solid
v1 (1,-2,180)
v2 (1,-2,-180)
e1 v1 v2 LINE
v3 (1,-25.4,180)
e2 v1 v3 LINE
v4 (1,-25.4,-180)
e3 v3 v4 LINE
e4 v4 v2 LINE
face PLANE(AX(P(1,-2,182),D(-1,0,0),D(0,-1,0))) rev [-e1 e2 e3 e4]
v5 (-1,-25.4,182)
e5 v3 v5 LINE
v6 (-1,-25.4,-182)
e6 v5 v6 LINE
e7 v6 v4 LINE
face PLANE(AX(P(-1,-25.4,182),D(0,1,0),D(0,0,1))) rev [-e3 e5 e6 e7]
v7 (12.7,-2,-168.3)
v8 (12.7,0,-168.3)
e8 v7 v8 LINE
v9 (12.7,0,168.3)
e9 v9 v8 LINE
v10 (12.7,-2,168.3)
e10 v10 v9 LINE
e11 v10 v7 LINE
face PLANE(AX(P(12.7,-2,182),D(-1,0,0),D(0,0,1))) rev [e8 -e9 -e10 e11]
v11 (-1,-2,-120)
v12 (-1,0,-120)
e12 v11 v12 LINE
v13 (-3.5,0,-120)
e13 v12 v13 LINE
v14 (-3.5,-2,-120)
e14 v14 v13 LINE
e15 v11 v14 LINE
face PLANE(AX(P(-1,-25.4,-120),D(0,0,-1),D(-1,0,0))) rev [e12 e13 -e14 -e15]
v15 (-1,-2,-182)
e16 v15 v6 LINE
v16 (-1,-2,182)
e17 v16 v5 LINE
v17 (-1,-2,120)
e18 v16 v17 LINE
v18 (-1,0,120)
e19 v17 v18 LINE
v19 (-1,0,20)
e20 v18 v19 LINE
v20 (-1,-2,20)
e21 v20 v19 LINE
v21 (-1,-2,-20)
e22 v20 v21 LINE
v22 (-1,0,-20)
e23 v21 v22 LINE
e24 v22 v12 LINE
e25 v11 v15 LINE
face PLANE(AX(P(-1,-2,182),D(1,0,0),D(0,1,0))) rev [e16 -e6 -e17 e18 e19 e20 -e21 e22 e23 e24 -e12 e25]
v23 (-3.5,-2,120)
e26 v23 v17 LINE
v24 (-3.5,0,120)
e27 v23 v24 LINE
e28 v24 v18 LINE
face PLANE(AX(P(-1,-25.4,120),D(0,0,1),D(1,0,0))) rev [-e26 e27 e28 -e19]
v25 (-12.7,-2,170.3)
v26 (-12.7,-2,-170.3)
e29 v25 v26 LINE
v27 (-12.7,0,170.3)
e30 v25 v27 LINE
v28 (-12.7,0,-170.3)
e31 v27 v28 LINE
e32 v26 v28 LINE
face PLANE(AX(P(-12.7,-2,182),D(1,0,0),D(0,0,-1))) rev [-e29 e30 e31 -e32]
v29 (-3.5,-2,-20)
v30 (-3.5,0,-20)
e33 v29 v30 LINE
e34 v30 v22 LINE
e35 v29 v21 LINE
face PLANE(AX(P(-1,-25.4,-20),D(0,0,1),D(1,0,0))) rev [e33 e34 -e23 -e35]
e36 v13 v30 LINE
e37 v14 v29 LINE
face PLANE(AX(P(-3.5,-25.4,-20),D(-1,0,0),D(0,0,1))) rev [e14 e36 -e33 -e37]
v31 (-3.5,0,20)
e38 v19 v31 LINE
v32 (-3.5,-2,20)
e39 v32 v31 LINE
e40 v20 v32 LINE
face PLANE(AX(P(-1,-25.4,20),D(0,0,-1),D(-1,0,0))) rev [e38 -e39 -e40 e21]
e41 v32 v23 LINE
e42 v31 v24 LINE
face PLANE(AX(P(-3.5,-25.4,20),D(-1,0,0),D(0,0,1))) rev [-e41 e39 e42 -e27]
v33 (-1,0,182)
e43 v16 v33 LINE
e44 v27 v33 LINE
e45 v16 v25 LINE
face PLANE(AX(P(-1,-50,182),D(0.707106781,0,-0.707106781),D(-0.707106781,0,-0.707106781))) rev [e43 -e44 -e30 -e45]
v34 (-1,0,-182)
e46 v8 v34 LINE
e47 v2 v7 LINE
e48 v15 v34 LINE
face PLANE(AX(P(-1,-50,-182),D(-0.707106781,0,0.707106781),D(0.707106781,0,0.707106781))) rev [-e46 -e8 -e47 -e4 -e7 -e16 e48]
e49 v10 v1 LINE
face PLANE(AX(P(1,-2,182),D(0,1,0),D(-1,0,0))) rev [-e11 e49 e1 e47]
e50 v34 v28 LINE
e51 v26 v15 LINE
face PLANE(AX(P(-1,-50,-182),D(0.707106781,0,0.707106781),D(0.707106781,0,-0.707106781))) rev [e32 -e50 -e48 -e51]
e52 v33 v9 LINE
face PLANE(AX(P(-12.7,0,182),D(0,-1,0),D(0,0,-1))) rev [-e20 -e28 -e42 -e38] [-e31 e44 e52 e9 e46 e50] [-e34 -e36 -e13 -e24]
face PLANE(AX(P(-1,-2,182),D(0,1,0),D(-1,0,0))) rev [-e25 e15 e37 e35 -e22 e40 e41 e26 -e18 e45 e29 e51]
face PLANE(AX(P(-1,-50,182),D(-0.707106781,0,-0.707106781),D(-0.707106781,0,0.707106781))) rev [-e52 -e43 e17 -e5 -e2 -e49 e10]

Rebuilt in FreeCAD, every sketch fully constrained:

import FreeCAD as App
import Part
import Sketcher
Q = App.Units.Quantity

doc = App.newDocument("Part")
body = doc.addObject("PartDesign::Body", "Body")

sketch1 = doc.addObject("Sketcher::SketchObject", "Sketch")
body.addObject(sketch1)
sketch1.AttachmentSupport = (doc.XY_Plane, [""])
sketch1.MapMode = "FlatFace"
sketch1.addGeometry([
    Part.LineSegment(App.Vector(12.7, 0, 0), App.Vector(-12.7, 0, 0)),
    Part.LineSegment(App.Vector(-12.7, 0, 0), App.Vector(-12.7, -2, 0)),
    Part.LineSegment(App.Vector(-12.7, -2, 0), App.Vector(-1, -2, 0)),
    Part.LineSegment(App.Vector(-1, -2, 0), App.Vector(-1, -25.4, 0)),
    Part.LineSegment(App.Vector(-1, -25.4, 0), App.Vector(1, -25.4, 0)),
    Part.LineSegment(App.Vector(1, -25.4, 0), App.Vector(1, -2, 0)),
    Part.LineSegment(App.Vector(1, -2, 0), App.Vector(12.7, -2, 0)),
    Part.LineSegment(App.Vector(12.7, -2, 0), App.Vector(12.7, 0, 0)),
], False)
sketch1.addConstraint([
    Sketcher.Constraint("Coincident", 0, 2, 1, 1),
    Sketcher.Constraint("Coincident", 1, 2, 2, 1),
    Sketcher.Constraint("Coincident", 2, 2, 3, 1),
    Sketcher.Constraint("Coincident", 3, 2, 4, 1),
    Sketcher.Constraint("Coincident", 4, 2, 5, 1),
    Sketcher.Constraint("Coincident", 5, 2, 6, 1),
    Sketcher.Constraint("Coincident", 6, 2, 7, 1),
    Sketcher.Constraint("Coincident", 7, 2, 0, 1),
    Sketcher.Constraint("Horizontal", 0),
    Sketcher.Constraint("Vertical", 1),
    Sketcher.Constraint("Horizontal", 2),
    Sketcher.Constraint("Vertical", 3),
    Sketcher.Constraint("Horizontal", 4),
    Sketcher.Constraint("Vertical", 5),
    Sketcher.Constraint("Horizontal", 6),
    Sketcher.Constraint("Vertical", 7),
    Sketcher.Constraint("Symmetric", 0, 2, 7, 2, -1, 1),
    Sketcher.Constraint("Symmetric", 2, 2, 5, 2, -2),
    Sketcher.Constraint("Equal", 4, 1),
    Sketcher.Constraint("DistanceX", 4, 1, 4, 2, Q("2 mm")),
    Sketcher.Constraint("DistanceX", 0, 2, 0, 1, Q("25.4 mm")),
    Sketcher.Constraint("DistanceY", 3, 2, 3, 1, Q("23.4 mm")),
])
pad1 = doc.addObject("PartDesign::Pad", "Pad")
body.addObject(pad1)
pad1.Profile = sketch1
pad1.Length = 364
pad1.Midplane = True

sketch2 = doc.addObject("Sketcher::SketchObject", "Sketch001")
body.addObject(sketch2)
sketch2.AttachmentSupport = (doc.XZ_Plane, [""])
sketch2.MapMode = "FlatFace"
sketch2.addGeometry([
    Part.LineSegment(App.Vector(-1, -182, 0), App.Vector(12.7, -168.3, 0)),
    Part.LineSegment(App.Vector(12.7, -168.3, 0), App.Vector(12.7, -182, 0)),
    Part.LineSegment(App.Vector(12.7, -182, 0), App.Vector(-1, -182, 0)),
    Part.LineSegment(App.Vector(12.7, 168.3, 0), App.Vector(-1, 182, 0)),
    Part.LineSegment(App.Vector(-1, 182, 0), App.Vector(12.7, 182, 0)),
    Part.LineSegment(App.Vector(12.7, 182, 0), App.Vector(12.7, 168.3, 0)),
], False)
sketch2.addConstraint([
    Sketcher.Constraint("Coincident", 0, 2, 1, 1),
    Sketcher.Constraint("Coincident", 1, 2, 2, 1),
    Sketcher.Constraint("Coincident", 2, 2, 0, 1),
    Sketcher.Constraint("Coincident", 3, 2, 4, 1),
    Sketcher.Constraint("Coincident", 4, 2, 5, 1),
    Sketcher.Constraint("Coincident", 5, 2, 3, 1),
    Sketcher.Constraint("Vertical", 1),
    Sketcher.Constraint("Horizontal", 2),
    Sketcher.Constraint("Horizontal", 4),
    Sketcher.Constraint("Vertical", 5),
    Sketcher.Constraint("Symmetric", 2, 2, 3, 2, -1),
    Sketcher.Constraint("Symmetric", 0, 2, 5, 2, -1),
    Sketcher.Constraint("Perpendicular", 0, 3),
    Sketcher.Constraint("DistanceX", 2, 2, 2, 1, Q("13.7 mm")),
    Sketcher.Constraint("DistanceY", 1, 2, -1, 1, Q("182 mm")),
    Sketcher.Constraint("DistanceX", 2, 2, -1, 1, Q("1 mm")),
])
pocket1 = doc.addObject("PartDesign::Pocket", "Pocket")
body.addObject(pocket1)
pocket1.Profile = sketch2
pocket1.Length = 100
pocket1.Midplane = True

sketch3 = doc.addObject("Sketcher::SketchObject", "Sketch002")
body.addObject(sketch3)
sketch3.AttachmentSupport = (doc.XZ_Plane, [""])
sketch3.MapMode = "FlatFace"
sketch3.addGeometry([
    Part.LineSegment(App.Vector(-3.5, -120, 0), App.Vector(-3.5, -20, 0)),
    Part.LineSegment(App.Vector(-3.5, -20, 0), App.Vector(-1, -20, 0)),
    Part.LineSegment(App.Vector(-1, -20, 0), App.Vector(-1, -120, 0)),
    Part.LineSegment(App.Vector(-1, -120, 0), App.Vector(-3.5, -120, 0)),
    Part.LineSegment(App.Vector(-3.5, 20, 0), App.Vector(-3.5, 120, 0)),
    Part.LineSegment(App.Vector(-3.5, 120, 0), App.Vector(-1, 120, 0)),
    Part.LineSegment(App.Vector(-1, 120, 0), App.Vector(-1, 20, 0)),
    Part.LineSegment(App.Vector(-1, 20, 0), App.Vector(-3.5, 20, 0)),
], False)
sketch3.addConstraint([
    Sketcher.Constraint("Coincident", 0, 2, 1, 1),
    Sketcher.Constraint("Coincident", 1, 2, 2, 1),
    Sketcher.Constraint("Coincident", 2, 2, 3, 1),
    Sketcher.Constraint("Coincident", 3, 2, 0, 1),
    Sketcher.Constraint("Coincident", 4, 2, 5, 1),
    Sketcher.Constraint("Coincident", 5, 2, 6, 1),
    Sketcher.Constraint("Coincident", 6, 2, 7, 1),
    Sketcher.Constraint("Coincident", 7, 2, 4, 1),
    Sketcher.Constraint("Vertical", 0),
    Sketcher.Constraint("Horizontal", 1),
    Sketcher.Constraint("Vertical", 2),
    Sketcher.Constraint("Horizontal", 3),
    Sketcher.Constraint("Vertical", 4),
    Sketcher.Constraint("Horizontal", 5),
    Sketcher.Constraint("Vertical", 6),
    Sketcher.Constraint("Horizontal", 7),
    Sketcher.Constraint("Symmetric", 3, 2, 4, 2, -1),
    Sketcher.Constraint("Symmetric", 1, 2, 6, 2, -1),
    Sketcher.Constraint("DistanceY", 0, 1, 0, 2, Q("100 mm")),
    Sketcher.Constraint("DistanceX", 1, 1, 1, 2, Q("2.5 mm")),
    Sketcher.Constraint("DistanceY", 0, 2, -1, 1, Q("20 mm")),
    Sketcher.Constraint("DistanceX", 1, 2, -1, 1, Q("1 mm")),
])
pocket2 = doc.addObject("PartDesign::Pocket", "Pocket001")
body.addObject(pocket2)
pocket2.Profile = sketch3
pocket2.Type = "ThroughAll"
pocket2.Reversed = True

sketch4 = doc.addObject("Sketcher::SketchObject", "Sketch003")
body.addObject(sketch4)
sketch4.AttachmentSupport = (doc.XZ_Plane, [""])
sketch4.MapMode = "FlatFace"
sketch4.addGeometry([
    Part.LineSegment(App.Vector(-12.7, -170.3, 0), App.Vector(-1, -182, 0)),
    Part.LineSegment(App.Vector(-1, -182, 0), App.Vector(-12.7, -182, 0)),
    Part.LineSegment(App.Vector(-12.7, -182, 0), App.Vector(-12.7, -170.3, 0)),
    Part.LineSegment(App.Vector(-1, 182, 0), App.Vector(-12.7, 170.3, 0)),
    Part.LineSegment(App.Vector(-12.7, 170.3, 0), App.Vector(-12.7, 182, 0)),
    Part.LineSegment(App.Vector(-12.7, 182, 0), App.Vector(-1, 182, 0)),
], False)
sketch4.addConstraint([
    Sketcher.Constraint("Coincident", 0, 2, 1, 1),
    Sketcher.Constraint("Coincident", 1, 2, 2, 1),
    Sketcher.Constraint("Coincident", 2, 2, 0, 1),
    Sketcher.Constraint("Coincident", 3, 2, 4, 1),
    Sketcher.Constraint("Coincident", 4, 2, 5, 1),
    Sketcher.Constraint("Coincident", 5, 2, 3, 1),
    Sketcher.Constraint("Horizontal", 1),
    Sketcher.Constraint("Vertical", 2),
    Sketcher.Constraint("Vertical", 4),
    Sketcher.Constraint("Horizontal", 5),
    Sketcher.Constraint("Symmetric", 2, 2, 3, 2, -1),
    Sketcher.Constraint("Symmetric", 0, 2, 5, 2, -1),
    Sketcher.Constraint("Perpendicular", 0, 3),
    Sketcher.Constraint("DistanceX", 1, 2, 1, 1, Q("11.7 mm")),
    Sketcher.Constraint("DistanceX", 0, 2, -1, 1, Q("1 mm")),
    Sketcher.Constraint("DistanceY", 0, 2, -1, 1, Q("182 mm")),
])
pocket3 = doc.addObject("PartDesign::Pocket", "Pocket002")
body.addObject(pocket3)
pocket3.Profile = sketch4
pocket3.Length = 100
pocket3.Midplane = True

doc.recompute()
